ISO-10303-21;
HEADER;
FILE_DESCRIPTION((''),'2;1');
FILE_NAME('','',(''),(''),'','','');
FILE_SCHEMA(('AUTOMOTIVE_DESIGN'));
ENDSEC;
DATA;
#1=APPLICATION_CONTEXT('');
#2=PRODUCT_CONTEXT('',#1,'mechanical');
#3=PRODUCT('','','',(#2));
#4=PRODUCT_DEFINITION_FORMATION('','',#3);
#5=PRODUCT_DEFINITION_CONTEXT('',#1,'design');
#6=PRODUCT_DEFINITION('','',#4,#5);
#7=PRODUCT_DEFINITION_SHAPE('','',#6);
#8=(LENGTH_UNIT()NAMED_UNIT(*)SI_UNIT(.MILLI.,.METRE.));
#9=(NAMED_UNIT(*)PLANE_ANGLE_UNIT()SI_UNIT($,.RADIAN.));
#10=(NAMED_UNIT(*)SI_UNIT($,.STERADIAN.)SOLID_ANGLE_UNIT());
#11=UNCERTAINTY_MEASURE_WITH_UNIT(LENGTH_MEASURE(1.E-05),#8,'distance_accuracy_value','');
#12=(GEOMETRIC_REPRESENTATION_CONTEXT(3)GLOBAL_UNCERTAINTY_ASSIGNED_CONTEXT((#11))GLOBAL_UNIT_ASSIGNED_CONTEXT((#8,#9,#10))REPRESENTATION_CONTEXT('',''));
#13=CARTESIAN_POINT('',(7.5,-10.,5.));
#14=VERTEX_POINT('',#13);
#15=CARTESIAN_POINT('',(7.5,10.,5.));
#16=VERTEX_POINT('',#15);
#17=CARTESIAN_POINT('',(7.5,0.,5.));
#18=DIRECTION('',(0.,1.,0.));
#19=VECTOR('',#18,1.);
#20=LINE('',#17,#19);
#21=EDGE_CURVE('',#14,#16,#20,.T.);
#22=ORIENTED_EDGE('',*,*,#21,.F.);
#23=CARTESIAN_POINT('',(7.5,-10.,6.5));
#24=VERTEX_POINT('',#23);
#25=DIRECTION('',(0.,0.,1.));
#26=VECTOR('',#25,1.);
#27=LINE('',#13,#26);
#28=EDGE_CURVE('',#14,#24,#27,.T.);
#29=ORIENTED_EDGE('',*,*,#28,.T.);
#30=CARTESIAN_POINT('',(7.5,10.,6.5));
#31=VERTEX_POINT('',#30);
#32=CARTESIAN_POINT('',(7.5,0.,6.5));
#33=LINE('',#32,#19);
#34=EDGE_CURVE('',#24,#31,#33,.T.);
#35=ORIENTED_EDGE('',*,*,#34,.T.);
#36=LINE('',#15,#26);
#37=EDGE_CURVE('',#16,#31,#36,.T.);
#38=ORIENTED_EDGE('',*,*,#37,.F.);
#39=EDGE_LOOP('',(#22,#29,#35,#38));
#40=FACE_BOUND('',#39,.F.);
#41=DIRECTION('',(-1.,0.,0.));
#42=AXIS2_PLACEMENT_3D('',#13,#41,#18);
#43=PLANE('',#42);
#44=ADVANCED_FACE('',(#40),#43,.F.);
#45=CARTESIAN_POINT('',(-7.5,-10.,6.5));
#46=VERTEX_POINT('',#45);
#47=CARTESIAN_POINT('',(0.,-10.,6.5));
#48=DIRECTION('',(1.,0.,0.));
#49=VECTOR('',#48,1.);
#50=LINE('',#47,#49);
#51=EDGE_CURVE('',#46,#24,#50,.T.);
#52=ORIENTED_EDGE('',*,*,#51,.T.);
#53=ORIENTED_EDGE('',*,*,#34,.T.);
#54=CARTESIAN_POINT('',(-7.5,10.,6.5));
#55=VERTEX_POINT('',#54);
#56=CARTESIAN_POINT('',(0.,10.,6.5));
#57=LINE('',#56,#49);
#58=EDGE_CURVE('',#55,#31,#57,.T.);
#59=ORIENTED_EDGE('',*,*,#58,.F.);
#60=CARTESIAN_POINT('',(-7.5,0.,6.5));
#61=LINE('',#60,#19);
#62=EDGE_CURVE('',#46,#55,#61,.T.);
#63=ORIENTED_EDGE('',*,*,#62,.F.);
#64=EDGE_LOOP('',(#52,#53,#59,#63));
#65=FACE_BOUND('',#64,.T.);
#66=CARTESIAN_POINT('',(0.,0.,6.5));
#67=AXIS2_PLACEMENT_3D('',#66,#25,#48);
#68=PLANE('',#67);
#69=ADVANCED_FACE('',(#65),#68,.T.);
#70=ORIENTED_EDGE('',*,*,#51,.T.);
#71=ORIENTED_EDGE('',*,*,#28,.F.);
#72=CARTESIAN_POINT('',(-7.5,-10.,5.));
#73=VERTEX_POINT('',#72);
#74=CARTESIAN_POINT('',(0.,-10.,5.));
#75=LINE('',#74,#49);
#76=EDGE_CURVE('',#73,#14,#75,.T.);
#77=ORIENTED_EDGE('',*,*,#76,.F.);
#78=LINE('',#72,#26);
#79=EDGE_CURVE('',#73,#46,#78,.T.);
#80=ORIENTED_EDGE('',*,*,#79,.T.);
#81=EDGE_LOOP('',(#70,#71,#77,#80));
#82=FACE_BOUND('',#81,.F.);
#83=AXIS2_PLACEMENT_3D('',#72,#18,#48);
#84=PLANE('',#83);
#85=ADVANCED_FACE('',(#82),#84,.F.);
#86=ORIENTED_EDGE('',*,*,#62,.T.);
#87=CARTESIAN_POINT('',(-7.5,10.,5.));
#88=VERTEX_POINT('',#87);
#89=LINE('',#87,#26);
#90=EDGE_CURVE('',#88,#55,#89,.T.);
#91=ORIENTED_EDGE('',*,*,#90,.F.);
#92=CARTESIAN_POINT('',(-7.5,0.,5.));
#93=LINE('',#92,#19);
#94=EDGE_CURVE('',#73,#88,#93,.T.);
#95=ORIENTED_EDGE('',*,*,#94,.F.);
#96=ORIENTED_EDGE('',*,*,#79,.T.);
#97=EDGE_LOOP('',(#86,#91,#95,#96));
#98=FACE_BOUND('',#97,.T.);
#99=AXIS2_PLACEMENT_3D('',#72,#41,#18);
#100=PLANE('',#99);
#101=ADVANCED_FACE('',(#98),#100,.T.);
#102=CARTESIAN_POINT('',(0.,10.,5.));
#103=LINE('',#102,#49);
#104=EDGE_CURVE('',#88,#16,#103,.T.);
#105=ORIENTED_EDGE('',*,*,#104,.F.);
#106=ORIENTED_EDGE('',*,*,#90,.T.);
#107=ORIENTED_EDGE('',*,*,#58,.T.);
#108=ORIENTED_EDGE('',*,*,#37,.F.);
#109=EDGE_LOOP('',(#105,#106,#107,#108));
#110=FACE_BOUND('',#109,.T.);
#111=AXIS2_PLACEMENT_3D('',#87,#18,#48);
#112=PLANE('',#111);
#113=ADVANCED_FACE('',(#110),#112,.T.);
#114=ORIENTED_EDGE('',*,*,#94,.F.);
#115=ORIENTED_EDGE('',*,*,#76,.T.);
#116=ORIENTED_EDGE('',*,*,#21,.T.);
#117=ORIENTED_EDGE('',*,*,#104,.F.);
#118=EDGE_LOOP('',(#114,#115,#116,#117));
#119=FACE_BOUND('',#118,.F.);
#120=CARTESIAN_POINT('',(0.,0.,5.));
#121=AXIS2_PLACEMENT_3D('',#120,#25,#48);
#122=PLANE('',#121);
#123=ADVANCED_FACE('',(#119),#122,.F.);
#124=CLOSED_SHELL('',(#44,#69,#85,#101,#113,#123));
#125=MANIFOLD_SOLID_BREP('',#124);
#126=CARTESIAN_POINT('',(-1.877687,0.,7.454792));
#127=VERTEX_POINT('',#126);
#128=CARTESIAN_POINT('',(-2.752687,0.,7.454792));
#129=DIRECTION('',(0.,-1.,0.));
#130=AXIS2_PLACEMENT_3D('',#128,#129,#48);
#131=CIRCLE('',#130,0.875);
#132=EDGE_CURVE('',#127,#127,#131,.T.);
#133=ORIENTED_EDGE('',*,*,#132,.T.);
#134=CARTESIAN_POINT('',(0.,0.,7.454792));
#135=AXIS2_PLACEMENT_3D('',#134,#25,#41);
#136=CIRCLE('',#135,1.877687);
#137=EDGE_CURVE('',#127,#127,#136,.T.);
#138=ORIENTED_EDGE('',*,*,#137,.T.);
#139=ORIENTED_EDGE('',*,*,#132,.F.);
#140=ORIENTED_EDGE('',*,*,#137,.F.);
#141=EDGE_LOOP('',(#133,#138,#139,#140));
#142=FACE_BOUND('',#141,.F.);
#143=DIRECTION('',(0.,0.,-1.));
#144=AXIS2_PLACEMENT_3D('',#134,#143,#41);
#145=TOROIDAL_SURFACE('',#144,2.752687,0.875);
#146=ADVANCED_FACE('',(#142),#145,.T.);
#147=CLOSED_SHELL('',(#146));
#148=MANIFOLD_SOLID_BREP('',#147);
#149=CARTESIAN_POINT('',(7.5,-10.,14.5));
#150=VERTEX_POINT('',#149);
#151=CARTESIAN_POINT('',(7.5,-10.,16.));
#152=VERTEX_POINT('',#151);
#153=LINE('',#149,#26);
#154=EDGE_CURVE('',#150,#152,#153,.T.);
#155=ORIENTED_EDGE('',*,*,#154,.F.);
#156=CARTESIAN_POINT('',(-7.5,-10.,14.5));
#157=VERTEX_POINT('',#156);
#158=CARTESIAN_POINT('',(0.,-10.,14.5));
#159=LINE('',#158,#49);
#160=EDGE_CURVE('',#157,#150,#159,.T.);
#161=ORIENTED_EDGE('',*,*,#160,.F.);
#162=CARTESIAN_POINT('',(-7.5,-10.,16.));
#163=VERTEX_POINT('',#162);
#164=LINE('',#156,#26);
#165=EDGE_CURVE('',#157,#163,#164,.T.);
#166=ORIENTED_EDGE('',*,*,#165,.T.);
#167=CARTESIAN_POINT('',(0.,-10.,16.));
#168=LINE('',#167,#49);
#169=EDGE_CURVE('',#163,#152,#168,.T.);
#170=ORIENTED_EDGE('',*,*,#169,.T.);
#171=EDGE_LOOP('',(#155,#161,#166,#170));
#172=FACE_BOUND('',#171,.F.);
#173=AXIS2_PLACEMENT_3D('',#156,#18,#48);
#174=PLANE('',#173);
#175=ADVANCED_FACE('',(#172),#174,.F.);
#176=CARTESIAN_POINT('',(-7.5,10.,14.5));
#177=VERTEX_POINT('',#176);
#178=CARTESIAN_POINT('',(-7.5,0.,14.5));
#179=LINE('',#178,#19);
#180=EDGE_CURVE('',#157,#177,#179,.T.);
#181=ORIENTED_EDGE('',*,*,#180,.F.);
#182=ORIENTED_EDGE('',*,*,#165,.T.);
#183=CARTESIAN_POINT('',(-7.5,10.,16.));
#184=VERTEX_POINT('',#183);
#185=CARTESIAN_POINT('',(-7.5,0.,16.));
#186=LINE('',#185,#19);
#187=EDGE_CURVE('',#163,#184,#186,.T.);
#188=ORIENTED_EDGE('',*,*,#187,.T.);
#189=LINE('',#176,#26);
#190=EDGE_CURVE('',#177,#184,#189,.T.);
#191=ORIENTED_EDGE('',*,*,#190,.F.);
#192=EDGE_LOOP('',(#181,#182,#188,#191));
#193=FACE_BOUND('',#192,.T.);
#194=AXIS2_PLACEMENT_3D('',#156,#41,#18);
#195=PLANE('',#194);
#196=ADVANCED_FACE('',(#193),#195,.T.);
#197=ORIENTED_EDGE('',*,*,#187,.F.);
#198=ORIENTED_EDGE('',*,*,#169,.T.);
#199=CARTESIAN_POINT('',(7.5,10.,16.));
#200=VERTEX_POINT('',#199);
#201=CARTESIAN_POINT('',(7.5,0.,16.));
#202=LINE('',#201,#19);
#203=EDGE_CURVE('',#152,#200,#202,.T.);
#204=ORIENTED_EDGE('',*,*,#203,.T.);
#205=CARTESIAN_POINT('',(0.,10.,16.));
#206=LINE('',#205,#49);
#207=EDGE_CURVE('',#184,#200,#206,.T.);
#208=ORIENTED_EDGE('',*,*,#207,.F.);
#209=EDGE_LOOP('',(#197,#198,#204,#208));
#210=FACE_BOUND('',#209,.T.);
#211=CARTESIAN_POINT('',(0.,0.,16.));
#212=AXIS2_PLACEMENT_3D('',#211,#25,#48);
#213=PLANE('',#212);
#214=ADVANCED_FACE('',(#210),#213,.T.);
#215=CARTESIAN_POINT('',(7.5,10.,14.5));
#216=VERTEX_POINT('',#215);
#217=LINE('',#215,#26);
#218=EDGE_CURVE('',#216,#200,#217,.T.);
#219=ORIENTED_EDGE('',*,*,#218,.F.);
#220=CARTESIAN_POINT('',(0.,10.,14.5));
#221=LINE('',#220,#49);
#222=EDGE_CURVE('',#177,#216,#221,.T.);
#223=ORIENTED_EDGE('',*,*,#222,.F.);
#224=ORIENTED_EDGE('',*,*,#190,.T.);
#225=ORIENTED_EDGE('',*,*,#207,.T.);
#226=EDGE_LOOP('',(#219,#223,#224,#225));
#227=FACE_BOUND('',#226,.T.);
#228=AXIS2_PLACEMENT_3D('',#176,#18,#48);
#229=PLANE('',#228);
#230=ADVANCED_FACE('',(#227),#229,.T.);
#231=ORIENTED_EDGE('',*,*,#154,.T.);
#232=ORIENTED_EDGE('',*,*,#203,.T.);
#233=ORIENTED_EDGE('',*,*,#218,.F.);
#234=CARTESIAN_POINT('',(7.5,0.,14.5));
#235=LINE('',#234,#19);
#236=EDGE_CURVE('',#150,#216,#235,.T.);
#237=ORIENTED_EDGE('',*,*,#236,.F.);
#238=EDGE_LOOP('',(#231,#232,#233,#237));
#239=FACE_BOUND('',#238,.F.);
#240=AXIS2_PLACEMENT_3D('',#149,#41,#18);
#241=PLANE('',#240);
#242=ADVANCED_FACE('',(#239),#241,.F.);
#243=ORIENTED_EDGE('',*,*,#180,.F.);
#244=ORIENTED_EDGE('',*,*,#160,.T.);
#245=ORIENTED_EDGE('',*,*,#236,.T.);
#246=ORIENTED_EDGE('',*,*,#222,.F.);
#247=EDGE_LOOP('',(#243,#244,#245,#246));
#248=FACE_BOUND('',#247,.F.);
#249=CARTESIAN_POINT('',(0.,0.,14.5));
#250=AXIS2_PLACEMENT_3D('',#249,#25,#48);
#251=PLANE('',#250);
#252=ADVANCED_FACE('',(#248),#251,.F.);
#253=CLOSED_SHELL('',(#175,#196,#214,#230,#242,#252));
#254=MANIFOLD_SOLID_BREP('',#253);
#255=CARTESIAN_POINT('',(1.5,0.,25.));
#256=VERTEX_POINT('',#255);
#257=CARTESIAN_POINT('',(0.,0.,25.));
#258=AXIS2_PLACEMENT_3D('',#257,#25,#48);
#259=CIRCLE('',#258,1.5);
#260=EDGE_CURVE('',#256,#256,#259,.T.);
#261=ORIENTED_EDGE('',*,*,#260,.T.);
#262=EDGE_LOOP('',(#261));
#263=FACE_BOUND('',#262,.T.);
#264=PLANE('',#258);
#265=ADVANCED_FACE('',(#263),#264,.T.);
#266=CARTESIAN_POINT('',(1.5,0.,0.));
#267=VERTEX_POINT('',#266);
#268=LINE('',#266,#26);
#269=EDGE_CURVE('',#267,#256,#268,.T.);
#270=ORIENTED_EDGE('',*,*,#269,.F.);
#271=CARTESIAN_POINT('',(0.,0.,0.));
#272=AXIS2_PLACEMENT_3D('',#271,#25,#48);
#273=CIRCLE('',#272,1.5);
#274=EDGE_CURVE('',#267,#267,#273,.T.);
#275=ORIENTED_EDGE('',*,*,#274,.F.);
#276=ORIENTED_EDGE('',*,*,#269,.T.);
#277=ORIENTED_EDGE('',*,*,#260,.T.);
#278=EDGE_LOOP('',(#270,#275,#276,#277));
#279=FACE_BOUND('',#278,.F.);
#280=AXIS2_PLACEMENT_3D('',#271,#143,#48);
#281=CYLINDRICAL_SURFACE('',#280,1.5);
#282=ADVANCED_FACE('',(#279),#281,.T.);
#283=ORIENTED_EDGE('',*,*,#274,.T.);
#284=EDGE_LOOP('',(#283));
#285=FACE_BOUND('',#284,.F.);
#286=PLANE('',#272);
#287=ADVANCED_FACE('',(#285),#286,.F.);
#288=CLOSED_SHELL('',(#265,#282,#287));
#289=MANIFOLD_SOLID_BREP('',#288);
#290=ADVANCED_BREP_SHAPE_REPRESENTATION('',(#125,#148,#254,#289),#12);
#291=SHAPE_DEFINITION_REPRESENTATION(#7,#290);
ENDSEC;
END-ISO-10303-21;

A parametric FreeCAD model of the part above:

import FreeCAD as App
import Part
import Sketcher
from FreeCAD import Vector
Q = App.Units.Quantity

doc = App.newDocument("Part")
body = doc.addObject("PartDesign::Body", "Body")

sketch1 = body.newObject("Sketcher::SketchObject", "Sketch")
sketch1.AttachmentSupport = (doc.getObject("XY_Plane"), [""])
sketch1.MapMode = "FlatFace"
sketch1.addGeometry(Part.Circle(Vector(0, 0, 0), Vector(0, 0, 1), 1.5), False)
sketch1.addConstraint([
    Sketcher.Constraint("Coincident", 0, 3, -1, 1),
    Sketcher.Constraint("Diameter", 0, Q("3 mm")),
])
pad1 = body.newObject("PartDesign::Pad", "Pad")
pad1.Profile = sketch1
pad1.Length = 25
body2 = doc.addObject("PartDesign::Body", "Body001")

sketch2 = body2.newObject("Sketcher::SketchObject", "Sketch001")
sketch2.AttachmentSupport = (doc.getObject("XY_Plane001"), [""])
sketch2.MapMode = "FlatFace"
sketch2.AttachmentOffset = App.Placement(Vector(0, 0, 5), App.Rotation())
sketch2.addGeometry([
    Part.LineSegment(Vector(-8, 10, 0), Vector(-8, -10, 0)),
    Part.LineSegment(Vector(-8, -10, 0), Vector(8, -10, 0)),
    Part.LineSegment(Vector(8, -10, 0), Vector(8, 10, 0)),
    Part.LineSegment(Vector(8, 10, 0), Vector(-8, 10, 0)),
], False)
sketch2.addConstraint([
    Sketcher.Constraint("Coincident", 0, 2, 1, 1),
    Sketcher.Constraint("Coincident", 1, 2, 2, 1),
    Sketcher.Constraint("Coincident", 2, 2, 3, 1),
    Sketcher.Constraint("Coincident", 3, 2, 0, 1),
    Sketcher.Constraint("Vertical", 0),
    Sketcher.Constraint("Horizontal", 1),
    Sketcher.Constraint("Vertical", 2),
    Sketcher.Constraint("Horizontal", 3),
    Sketcher.Constraint("Symmetric", 0, 2, 2, 2, -1, 1),
    Sketcher.Constraint("DistanceX", 1, 1, 1, 2, Q("15 mm")),
    Sketcher.Constraint("DistanceY", 0, 2, 0, 1, Q("20 mm")),
])
pad2 = body2.newObject("PartDesign::Pad", "Pad001")
pad2.Profile = sketch2
pad2.Length = 1.5
body3 = doc.addObject("PartDesign::Body", "Body002")

sketch3 = body3.newObject("Sketcher::SketchObject", "Sketch002")
sketch3.AttachmentSupport = (doc.getObject("XY_Plane002"), [""])
sketch3.MapMode = "FlatFace"
sketch3.AttachmentOffset = App.Placement(Vector(0, 0, 14.5), App.Rotation())
sketch3.addGeometry([
    Part.LineSegment(Vector(-8, 10, 0), Vector(-8, -10, 0)),
    Part.LineSegment(Vector(-8, -10, 0), Vector(8, -10, 0)),
    Part.LineSegment(Vector(8, -10, 0), Vector(8, 10, 0)),
    Part.LineSegment(Vector(8, 10, 0), Vector(-8, 10, 0)),
], False)
sketch3.addConstraint([
    Sketcher.Constraint("Coincident", 0, 2, 1, 1),
    Sketcher.Constraint("Coincident", 1, 2, 2, 1),
    Sketcher.Constraint("Coincident", 2, 2, 3, 1),
    Sketcher.Constraint("Coincident", 3, 2, 0, 1),
    Sketcher.Constraint("Vertical", 0),
    Sketcher.Constraint("Horizontal", 1),
    Sketcher.Constraint("Vertical", 2),
    Sketcher.Constraint("Horizontal", 3),
    Sketcher.Constraint("Symmetric", 0, 2, 2, 2, -1, 1),
    Sketcher.Constraint("DistanceX", 1, 1, 1, 2, Q("15 mm")),
    Sketcher.Constraint("DistanceY", 0, 2, 0, 1, Q("20 mm")),
])
pad3 = body3.newObject("PartDesign::Pad", "Pad002")
pad3.Profile = sketch3
pad3.Length = 1.5
body4 = doc.addObject("PartDesign::Body", "Body003")

sketch4 = body4.newObject("Sketcher::SketchObject", "Sketch003")
sketch4.AttachmentSupport = (doc.getObject("XZ_Plane003"), [""])
sketch4.MapMode = "FlatFace"
sketch4.addGeometry(Part.Circle(Vector(-2.8, 7.5, 0), Vector(0, 0, 1), 0.9), False)
sketch4.addConstraint([
    Sketcher.Constraint("Diameter", 0, Q("1.75 mm")),
    Sketcher.Constraint("DistanceX", 0, 3, -1, 1, Q("2.752687 mm")),
    Sketcher.Constraint("DistanceY", -1, 1, 0, 3, Q("7.454792 mm")),
])
revolution = body4.newObject("PartDesign::Revolution", "Revolution")
revolution.Profile = sketch4
revolution.ReferenceAxis = (sketch4, ["V_Axis"])
revolution.Angle = 360

doc.recompute()
